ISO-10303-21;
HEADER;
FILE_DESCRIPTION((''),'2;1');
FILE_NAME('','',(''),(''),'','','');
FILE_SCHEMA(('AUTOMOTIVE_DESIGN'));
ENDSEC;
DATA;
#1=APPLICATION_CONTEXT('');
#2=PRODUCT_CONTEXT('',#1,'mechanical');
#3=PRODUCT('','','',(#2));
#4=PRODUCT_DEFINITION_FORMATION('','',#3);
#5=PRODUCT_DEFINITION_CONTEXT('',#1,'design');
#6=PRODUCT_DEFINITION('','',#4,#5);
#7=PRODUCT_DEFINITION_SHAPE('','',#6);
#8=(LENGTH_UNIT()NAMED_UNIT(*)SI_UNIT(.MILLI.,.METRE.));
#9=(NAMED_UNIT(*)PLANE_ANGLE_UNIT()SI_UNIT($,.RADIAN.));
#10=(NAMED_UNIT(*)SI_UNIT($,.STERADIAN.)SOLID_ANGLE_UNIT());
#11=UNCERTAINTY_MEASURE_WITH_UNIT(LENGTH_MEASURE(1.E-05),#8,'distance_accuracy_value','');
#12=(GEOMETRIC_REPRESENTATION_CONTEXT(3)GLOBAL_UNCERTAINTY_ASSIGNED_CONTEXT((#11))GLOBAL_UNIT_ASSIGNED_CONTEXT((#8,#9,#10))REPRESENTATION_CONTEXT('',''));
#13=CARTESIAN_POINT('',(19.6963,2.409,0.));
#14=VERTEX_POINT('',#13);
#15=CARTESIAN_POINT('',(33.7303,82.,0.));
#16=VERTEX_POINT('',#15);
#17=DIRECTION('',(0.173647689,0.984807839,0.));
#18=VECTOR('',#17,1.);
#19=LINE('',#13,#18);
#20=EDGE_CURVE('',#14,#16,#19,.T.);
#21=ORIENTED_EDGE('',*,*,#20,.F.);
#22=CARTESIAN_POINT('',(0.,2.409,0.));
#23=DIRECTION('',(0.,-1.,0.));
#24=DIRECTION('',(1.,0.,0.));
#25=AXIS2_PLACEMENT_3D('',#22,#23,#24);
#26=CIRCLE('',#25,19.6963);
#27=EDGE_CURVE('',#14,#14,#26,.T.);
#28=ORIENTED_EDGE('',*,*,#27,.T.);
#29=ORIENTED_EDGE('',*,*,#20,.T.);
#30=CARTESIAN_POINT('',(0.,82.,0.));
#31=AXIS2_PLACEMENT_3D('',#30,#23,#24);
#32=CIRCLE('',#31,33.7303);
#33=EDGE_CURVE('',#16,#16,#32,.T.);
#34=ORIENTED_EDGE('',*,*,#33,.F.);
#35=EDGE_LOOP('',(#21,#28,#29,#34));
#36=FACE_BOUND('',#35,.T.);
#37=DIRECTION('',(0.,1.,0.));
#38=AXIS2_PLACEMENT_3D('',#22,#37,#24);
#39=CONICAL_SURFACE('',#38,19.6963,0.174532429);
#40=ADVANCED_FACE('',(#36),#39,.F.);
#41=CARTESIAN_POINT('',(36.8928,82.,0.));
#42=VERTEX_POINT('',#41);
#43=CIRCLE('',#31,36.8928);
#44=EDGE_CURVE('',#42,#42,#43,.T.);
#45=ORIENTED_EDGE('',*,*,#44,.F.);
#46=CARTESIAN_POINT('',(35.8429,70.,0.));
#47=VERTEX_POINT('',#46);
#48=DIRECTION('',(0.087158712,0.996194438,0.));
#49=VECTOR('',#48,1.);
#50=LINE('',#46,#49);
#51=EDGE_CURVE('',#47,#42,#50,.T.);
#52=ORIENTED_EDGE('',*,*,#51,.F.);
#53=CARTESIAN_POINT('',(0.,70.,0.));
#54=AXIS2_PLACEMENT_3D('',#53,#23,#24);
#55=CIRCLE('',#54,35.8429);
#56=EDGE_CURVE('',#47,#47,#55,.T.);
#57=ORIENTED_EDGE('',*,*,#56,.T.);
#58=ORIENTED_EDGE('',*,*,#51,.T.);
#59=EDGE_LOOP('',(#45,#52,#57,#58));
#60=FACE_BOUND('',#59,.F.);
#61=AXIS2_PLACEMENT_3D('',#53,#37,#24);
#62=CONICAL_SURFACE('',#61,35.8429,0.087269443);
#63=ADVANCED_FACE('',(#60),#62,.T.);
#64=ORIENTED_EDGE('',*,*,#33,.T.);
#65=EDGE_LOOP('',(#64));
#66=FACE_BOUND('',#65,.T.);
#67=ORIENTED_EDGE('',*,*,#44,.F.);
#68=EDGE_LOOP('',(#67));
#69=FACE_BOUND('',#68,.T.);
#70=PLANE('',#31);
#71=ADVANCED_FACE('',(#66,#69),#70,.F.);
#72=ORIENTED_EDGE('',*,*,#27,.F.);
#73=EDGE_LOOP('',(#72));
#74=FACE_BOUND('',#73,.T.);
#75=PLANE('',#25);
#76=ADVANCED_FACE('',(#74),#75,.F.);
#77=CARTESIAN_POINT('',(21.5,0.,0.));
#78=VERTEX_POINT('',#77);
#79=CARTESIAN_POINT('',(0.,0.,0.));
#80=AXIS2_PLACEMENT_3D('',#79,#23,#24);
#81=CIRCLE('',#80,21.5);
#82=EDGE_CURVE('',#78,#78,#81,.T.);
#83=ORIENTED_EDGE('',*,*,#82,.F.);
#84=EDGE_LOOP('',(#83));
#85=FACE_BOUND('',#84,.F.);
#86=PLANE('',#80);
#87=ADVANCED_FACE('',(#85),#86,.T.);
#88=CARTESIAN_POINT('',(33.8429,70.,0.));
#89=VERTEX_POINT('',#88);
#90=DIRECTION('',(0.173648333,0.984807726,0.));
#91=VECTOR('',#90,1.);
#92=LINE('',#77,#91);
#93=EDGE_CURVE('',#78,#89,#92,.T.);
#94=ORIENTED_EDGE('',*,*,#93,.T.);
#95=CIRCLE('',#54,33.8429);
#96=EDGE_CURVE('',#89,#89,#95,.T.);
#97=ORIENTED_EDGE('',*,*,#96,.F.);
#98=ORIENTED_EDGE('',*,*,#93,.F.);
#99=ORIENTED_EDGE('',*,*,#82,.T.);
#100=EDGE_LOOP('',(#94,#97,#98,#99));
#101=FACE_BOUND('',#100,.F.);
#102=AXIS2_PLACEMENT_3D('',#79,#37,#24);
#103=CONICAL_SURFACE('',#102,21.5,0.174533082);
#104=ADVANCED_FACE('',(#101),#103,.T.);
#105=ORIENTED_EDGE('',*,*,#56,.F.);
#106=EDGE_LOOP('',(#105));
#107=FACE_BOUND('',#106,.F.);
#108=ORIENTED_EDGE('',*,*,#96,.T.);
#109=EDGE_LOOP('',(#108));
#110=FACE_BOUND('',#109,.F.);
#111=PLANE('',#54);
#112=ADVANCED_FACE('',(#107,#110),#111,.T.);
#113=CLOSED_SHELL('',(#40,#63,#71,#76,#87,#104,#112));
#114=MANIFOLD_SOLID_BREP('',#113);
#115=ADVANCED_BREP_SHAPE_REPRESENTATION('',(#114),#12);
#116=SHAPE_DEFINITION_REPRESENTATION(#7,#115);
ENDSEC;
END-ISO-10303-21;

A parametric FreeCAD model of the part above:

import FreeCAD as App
import Part
import Sketcher
Q = App.Units.Quantity

doc = App.newDocument("Part")
params = doc.addObject("Spreadsheet::Sheet", "Params")
for row, (alias, value) in enumerate([
    ("sketch1_width", "2 mm"),
    ("sketch1_width2", "21.5 mm"),
    ("revolution_angle", "360 deg"),
], start=1):
    params.set(f"A{row}", alias)
    params.set(f"B{row}", "=" + value)
    params.setAlias(f"B{row}", alias)

body = doc.addObject("PartDesign::Body", "Body")

# Sketch on XY plane
sketch1 = body.newObject("Sketcher::SketchObject", "Sketch")
sketch1.AttachmentSupport = (doc.getObject("XY_Plane"), [""])
sketch1.MapMode = "FlatFace"
sketch1.addGeometry(Part.LineSegment(App.Vector(33.8, 70, 0), App.Vector(35.8, 70, 0)), False)
sketch1.addGeometry(Part.LineSegment(App.Vector(35.8, 70, 0), App.Vector(36.9, 82, 0)), False)
sketch1.addGeometry(Part.LineSegment(App.Vector(36.9, 82, 0), App.Vector(33.7, 82, 0)), False)
sketch1.addGeometry(Part.LineSegment(App.Vector(33.7, 82, 0), App.Vector(19.7, 2.4, 0)), False)
sketch1.addGeometry(Part.LineSegment(App.Vector(19.7, 2.4, 0), App.Vector(0, 2.4, 0)), False)
sketch1.addGeometry(Part.LineSegment(App.Vector(0, 2.4, 0), App.Vector(0, 0, 0)), False)
sketch1.addGeometry(Part.LineSegment(App.Vector(0, 0, 0), App.Vector(21.5, 0, 0)), False)
sketch1.addGeometry(Part.LineSegment(App.Vector(21.5, 0, 0), App.Vector(33.8, 70, 0)), False)
sketch1.addConstraint(Sketcher.Constraint("Coincident", 0, 2, 1, 1))
sketch1.addConstraint(Sketcher.Constraint("Coincident", 1, 2, 2, 1))
sketch1.addConstraint(Sketcher.Constraint("Coincident", 2, 2, 3, 1))
sketch1.addConstraint(Sketcher.Constraint("Coincident", 3, 2, 4, 1))
sketch1.addConstraint(Sketcher.Constraint("Coincident", 4, 2, 5, 1))
sketch1.addConstraint(Sketcher.Constraint("Coincident", 5, 2, 6, 1))
sketch1.addConstraint(Sketcher.Constraint("Coincident", 6, 2, 7, 1))
sketch1.addConstraint(Sketcher.Constraint("Coincident", 7, 2, 0, 1))
sketch1.addConstraint(Sketcher.Constraint("Horizontal", 0))
sketch1.addConstraint(Sketcher.Constraint("Horizontal", 2))
sketch1.addConstraint(Sketcher.Constraint("Horizontal", 4))
sketch1.addConstraint(Sketcher.Constraint("Vertical", 5))
sketch1.addConstraint(Sketcher.Constraint("Horizontal", 6))
sketch1.addConstraint(Sketcher.Constraint("Coincident", 5, 2, -1, 1))
sketch1.addConstraint(Sketcher.Constraint("Parallel", 3, 7))
sketch1.addConstraint(Sketcher.Constraint("DistanceX", 0, 1, 0, 2, 2.0))
sketch1.addConstraint(Sketcher.Constraint("Angle", 1, Q("84.9998 deg")))
sketch1.addConstraint(Sketcher.Constraint("Angle", 3, Q("-100 deg")))
sketch1.addConstraint(Sketcher.Constraint("DistanceX", 6, 1, 6, 2, 21.5))
sketch1.addConstraint(Sketcher.Constraint("DistanceY", -1, 1, 0, 2, 70.0))
sketch1.addConstraint(Sketcher.Constraint("DistanceY", -1, 1, 1, 2, 82.0))
sketch1.addConstraint(Sketcher.Constraint("DistanceY", 5, 2, 5, 1, 2.409))
sketch1.addConstraint(Sketcher.Constraint("DistanceX", 2, 2, 2, 1, 3.1625))
sketch1.setExpression("Constraints[15]", "Params.sketch1_width")
sketch1.setExpression("Constraints[18]", "Params.sketch1_width2")
revolution = body.newObject("PartDesign::Revolution", "Revolution")
revolution.Profile = sketch1
revolution.ReferenceAxis = (sketch1, ["V_Axis"])
revolution.setExpression("Angle", "Params.revolution_angle")

doc.recompute()
